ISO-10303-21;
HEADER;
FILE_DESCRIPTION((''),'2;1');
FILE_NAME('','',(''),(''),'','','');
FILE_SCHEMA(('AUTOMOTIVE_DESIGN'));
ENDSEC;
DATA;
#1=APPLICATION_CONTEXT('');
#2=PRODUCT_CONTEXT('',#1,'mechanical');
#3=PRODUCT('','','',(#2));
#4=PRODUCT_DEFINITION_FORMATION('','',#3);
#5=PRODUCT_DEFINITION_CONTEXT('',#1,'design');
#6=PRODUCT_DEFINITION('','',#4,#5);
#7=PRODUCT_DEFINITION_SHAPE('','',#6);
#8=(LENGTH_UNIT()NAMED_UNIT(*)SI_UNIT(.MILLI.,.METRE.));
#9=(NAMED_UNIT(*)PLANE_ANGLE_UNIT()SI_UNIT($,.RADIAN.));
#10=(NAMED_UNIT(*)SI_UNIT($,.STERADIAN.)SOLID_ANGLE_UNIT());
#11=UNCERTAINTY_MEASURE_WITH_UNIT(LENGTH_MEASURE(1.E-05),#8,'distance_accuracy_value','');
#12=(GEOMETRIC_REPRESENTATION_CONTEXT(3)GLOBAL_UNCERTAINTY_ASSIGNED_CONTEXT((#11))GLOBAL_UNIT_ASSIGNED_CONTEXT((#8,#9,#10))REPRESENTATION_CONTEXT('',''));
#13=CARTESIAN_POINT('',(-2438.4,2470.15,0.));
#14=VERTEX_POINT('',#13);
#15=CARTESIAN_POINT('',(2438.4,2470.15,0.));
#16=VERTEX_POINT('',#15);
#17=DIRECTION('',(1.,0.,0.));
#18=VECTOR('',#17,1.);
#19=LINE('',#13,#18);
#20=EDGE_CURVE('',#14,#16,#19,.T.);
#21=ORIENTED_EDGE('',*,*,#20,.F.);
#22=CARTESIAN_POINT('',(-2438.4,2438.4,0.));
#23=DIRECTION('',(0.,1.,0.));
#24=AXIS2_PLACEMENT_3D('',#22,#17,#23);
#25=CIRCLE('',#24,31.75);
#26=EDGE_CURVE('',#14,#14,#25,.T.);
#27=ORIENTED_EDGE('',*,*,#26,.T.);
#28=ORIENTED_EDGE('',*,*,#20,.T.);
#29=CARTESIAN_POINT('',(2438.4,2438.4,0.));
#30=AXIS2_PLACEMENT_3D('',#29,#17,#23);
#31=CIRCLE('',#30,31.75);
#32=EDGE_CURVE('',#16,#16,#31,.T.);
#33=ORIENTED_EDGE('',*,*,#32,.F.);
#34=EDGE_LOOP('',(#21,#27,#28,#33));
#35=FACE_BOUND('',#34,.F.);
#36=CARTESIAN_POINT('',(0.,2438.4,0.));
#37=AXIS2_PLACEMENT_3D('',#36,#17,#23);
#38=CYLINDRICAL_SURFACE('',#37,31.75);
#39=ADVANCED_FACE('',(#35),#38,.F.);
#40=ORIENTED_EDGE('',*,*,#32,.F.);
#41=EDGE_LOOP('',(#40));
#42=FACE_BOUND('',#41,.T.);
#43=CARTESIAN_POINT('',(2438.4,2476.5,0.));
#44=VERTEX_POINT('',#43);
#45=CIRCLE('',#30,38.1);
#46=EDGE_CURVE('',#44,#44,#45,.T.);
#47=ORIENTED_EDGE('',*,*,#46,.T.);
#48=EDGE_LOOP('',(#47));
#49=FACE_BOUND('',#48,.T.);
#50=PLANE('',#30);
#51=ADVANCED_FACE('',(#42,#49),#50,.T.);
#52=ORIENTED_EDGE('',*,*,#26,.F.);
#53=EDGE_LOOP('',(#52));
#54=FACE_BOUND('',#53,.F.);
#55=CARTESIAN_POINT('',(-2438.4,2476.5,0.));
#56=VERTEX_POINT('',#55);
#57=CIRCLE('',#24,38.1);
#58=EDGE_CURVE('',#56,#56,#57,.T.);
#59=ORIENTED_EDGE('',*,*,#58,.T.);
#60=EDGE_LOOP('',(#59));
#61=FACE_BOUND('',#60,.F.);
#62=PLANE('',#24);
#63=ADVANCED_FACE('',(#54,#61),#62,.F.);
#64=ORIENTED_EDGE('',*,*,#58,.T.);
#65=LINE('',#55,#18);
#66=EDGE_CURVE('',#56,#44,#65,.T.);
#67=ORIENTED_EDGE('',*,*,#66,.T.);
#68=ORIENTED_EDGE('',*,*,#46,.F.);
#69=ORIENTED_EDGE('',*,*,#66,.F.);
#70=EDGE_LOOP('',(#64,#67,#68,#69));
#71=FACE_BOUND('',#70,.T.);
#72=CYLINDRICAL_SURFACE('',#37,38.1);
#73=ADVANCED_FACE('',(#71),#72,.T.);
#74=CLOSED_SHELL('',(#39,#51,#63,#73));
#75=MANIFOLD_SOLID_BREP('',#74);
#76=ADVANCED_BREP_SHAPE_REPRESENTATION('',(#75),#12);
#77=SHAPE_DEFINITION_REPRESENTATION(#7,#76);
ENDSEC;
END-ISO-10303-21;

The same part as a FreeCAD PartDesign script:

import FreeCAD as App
import Part
import Sketcher
from FreeCAD import Vector
Q = App.Units.Quantity


def faces_at(feature, points):
    """Names of the faces that lie closest to the given points."""
    faces = feature.Shape.Faces
    near = lambda p: min(range(len(faces)), key=lambda i: faces[i].distToShape(Part.Vertex(*p))[0])
    return sorted({f"Face{near(p) + 1}" for p in points})

doc = App.newDocument("Part")
body = doc.addObject("PartDesign::Body", "Body")

# Sketch on YZ plane
sketch1 = body.newObject("Sketcher::SketchObject", "Sketch")
sketch1.AttachmentSupport = (doc.getObject("YZ_Plane"), [""])
sketch1.MapMode = "FlatFace"
sketch1.addGeometry(Part.Circle(Vector(2438, 0, 0), Vector(0, 0, 1), 38), False)
sketch1.addConstraint([
    Sketcher.Constraint("PointOnObject", 0, 3, -1),
    Sketcher.Constraint("Diameter", 0, Q("3 in")),
    Sketcher.Constraint("DistanceX", -1, 1, 0, 3, Q("96 in")),
])
pad1 = body.newObject("PartDesign::Pad", "Pad")
pad1.Profile = sketch1
pad1.Length = Q("192 in")
pad1.Midplane = True
doc.recompute()

thickness = body.newObject("PartDesign::Thickness", "Thickness")
thickness.Base = (pad1, faces_at(pad1, [(2438.4, 2438.4, 0), (-2438.4, 2438.4, 0)]))
thickness.Value = Q("0.25 in")
thickness.Reversed = True
thickness.Join = "Arc"

doc.recompute()
